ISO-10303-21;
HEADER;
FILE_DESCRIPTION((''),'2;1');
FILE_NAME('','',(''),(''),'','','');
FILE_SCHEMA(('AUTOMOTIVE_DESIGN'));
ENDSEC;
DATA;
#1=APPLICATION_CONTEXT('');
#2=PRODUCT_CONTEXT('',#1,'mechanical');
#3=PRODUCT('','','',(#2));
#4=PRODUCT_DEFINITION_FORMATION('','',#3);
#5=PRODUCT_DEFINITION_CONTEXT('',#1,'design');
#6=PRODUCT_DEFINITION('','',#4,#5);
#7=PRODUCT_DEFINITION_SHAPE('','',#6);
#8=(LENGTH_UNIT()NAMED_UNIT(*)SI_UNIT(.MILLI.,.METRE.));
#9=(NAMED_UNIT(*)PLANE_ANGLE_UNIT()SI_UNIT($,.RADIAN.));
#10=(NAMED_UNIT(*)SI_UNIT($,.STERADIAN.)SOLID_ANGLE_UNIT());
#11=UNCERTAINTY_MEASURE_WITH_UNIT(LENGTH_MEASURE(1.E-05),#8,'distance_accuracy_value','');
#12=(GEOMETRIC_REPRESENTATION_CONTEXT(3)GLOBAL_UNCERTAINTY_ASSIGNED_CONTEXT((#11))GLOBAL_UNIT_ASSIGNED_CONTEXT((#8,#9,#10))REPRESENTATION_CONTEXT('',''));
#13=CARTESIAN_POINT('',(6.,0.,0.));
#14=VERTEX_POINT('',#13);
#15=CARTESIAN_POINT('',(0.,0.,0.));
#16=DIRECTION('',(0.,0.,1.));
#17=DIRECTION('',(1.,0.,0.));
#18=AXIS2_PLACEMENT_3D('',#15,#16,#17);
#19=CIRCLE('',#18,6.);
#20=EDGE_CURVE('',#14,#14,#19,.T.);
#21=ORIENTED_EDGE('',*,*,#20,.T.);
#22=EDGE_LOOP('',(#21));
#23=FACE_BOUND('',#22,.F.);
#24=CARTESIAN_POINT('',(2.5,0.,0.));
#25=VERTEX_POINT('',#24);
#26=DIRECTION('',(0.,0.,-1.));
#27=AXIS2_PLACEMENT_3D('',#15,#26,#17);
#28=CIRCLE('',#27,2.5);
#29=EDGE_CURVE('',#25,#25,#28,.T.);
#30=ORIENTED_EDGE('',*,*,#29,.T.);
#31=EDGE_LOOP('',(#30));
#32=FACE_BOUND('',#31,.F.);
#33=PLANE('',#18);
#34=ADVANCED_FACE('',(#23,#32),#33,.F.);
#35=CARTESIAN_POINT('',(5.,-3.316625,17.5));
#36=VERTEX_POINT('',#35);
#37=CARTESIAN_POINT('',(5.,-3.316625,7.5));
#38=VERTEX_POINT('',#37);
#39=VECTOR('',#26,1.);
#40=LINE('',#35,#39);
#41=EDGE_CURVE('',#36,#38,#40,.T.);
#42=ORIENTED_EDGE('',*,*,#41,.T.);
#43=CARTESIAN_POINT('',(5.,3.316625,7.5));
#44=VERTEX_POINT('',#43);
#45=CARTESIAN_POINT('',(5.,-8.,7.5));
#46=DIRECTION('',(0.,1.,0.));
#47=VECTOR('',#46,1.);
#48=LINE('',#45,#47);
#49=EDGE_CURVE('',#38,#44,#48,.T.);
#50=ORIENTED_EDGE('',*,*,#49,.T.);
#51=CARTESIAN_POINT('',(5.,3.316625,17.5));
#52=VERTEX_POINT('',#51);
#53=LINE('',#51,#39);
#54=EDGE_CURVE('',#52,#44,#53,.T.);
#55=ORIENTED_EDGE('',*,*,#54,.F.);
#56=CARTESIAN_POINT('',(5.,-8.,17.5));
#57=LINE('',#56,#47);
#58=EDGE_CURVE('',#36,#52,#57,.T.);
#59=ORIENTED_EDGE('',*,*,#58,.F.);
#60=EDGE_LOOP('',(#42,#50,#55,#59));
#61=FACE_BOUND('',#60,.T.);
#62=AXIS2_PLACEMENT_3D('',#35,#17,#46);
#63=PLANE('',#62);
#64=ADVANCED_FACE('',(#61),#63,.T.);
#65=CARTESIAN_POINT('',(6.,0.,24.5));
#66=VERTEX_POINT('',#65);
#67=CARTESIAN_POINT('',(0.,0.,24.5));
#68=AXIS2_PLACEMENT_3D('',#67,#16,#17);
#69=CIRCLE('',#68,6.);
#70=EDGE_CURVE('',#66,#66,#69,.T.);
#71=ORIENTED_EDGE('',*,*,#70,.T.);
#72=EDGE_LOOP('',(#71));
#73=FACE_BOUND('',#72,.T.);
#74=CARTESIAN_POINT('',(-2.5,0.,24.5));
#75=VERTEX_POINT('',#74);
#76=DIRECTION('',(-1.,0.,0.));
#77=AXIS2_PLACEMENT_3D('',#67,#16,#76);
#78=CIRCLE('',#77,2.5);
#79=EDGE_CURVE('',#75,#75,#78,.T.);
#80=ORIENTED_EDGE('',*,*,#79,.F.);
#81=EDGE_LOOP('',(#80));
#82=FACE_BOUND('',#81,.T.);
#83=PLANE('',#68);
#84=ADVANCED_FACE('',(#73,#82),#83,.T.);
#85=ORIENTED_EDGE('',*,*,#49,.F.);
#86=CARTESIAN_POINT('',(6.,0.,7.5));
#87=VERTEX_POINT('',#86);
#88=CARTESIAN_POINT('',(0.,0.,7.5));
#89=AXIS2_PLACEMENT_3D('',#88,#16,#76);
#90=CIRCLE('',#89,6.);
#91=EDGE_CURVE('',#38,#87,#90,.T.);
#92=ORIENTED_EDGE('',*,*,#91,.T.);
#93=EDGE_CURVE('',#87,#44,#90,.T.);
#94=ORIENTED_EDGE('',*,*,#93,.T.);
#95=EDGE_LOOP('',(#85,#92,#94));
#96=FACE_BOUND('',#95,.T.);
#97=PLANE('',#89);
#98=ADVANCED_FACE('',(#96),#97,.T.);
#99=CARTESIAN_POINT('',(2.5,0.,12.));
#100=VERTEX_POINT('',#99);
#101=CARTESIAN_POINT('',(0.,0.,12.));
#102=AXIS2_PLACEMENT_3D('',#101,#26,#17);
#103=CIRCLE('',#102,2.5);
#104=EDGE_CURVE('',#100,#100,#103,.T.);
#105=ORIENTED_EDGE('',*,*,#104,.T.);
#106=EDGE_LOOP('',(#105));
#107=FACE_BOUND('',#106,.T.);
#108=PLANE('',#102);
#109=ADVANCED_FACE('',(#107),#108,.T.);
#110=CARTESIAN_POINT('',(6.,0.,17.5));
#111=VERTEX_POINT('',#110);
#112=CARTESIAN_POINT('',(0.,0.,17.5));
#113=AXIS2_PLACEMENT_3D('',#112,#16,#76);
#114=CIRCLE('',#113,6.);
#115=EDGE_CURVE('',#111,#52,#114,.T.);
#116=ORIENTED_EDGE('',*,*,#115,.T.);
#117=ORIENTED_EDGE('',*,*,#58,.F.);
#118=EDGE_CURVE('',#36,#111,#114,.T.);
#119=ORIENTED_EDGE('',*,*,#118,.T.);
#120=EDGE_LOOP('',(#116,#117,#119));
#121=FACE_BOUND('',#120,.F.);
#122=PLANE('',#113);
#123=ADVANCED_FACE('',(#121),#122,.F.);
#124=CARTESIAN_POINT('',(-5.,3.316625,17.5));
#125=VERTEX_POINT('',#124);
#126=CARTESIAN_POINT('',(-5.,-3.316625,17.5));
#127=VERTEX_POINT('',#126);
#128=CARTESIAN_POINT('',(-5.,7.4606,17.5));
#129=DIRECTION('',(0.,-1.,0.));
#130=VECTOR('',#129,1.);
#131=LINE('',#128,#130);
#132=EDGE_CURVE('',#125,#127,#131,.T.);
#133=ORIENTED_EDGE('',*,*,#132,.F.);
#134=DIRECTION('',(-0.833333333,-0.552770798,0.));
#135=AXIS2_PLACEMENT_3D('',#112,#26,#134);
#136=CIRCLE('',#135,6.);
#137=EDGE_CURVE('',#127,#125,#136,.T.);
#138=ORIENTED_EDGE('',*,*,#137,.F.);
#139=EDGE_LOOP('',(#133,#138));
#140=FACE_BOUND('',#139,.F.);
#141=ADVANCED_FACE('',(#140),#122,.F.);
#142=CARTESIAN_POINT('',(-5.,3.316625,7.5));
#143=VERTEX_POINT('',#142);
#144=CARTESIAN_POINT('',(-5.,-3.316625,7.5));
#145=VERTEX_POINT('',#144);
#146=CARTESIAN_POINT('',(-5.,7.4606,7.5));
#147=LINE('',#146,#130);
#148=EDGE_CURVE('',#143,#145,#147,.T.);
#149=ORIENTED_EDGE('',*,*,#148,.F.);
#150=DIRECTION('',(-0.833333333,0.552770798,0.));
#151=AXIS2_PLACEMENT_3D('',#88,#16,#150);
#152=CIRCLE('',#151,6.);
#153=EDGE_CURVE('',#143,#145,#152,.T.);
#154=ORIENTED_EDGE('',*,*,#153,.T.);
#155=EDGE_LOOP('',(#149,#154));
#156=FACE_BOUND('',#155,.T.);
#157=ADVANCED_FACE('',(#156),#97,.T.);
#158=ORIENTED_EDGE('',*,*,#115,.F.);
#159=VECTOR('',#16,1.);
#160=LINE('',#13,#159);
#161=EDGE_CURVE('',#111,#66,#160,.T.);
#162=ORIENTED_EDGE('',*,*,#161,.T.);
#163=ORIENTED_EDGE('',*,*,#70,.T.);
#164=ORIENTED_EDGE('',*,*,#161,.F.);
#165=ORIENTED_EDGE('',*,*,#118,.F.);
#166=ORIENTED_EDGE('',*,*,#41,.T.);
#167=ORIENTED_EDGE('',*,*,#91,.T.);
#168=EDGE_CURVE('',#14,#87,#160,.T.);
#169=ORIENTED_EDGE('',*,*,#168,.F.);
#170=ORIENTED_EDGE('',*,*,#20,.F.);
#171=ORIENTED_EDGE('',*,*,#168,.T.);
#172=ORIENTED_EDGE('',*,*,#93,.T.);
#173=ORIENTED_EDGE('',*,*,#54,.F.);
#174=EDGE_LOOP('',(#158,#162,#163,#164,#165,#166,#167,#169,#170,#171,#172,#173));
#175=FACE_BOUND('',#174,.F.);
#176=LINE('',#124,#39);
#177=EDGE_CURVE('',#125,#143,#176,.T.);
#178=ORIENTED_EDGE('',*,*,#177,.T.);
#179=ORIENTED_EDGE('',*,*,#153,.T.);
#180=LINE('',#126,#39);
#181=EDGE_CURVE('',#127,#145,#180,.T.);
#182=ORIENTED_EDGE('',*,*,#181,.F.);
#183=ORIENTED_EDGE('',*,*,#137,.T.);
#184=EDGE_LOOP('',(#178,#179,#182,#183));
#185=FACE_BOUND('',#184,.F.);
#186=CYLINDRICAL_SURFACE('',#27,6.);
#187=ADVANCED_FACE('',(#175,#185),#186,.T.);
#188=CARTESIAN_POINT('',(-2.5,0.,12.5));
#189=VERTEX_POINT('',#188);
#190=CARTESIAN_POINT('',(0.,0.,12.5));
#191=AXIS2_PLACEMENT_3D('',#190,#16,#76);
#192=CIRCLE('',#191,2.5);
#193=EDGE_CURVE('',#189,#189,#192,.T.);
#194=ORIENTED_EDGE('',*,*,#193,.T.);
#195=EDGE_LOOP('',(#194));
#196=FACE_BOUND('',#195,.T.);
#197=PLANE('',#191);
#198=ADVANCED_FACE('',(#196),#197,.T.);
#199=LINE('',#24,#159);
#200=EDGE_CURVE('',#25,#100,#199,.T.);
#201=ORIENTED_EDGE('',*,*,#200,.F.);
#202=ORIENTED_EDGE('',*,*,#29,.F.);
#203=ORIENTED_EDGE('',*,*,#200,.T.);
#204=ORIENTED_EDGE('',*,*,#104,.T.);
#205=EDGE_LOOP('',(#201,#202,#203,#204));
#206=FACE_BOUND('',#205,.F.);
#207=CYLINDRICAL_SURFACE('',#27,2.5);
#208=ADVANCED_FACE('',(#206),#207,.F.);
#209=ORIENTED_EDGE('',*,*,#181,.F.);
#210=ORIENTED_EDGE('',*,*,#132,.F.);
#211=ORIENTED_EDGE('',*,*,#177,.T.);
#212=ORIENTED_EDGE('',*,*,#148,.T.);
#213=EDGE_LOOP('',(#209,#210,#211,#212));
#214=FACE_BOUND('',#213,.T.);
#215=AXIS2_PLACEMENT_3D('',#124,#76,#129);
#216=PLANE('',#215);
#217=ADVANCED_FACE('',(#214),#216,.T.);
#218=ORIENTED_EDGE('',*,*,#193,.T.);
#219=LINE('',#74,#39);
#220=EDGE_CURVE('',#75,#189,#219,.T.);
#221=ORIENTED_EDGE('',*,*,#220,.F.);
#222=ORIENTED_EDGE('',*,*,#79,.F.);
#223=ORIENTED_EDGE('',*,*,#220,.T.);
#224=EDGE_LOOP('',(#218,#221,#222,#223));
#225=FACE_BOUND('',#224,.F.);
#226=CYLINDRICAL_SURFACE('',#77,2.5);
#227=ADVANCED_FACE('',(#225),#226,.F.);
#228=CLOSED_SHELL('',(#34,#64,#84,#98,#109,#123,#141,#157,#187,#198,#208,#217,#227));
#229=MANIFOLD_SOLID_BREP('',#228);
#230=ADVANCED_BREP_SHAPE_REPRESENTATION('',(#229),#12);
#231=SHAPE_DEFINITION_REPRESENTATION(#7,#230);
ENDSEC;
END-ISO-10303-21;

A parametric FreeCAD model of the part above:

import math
import FreeCAD as App
import Part
import Sketcher

V = App.Vector
Q = App.Units.Quantity

doc = App.newDocument("Part")
params = doc.addObject("Spreadsheet::Sheet", "Params")
for row, (alias, value) in enumerate([
    ("sketch1_diameter", "12 mm"),
    ("pad1_length", "24.5 mm"),
    ("sketch2_diameter", "5 mm"),
    ("pocket1_length", "12 mm"),
    ("sketch3_diameter", "5 mm"),
    ("pocket2_length", "12 mm"),
    ("sketch4_radius", "6 mm"),
    ("pocket3_length", "10 mm"),
], start=1):
    params.set(f"A{row}", alias)
    params.set(f"B{row}", "=" + value)
    params.setAlias(f"B{row}", alias)

body = doc.addObject("PartDesign::Body", "Body")

sketch1 = body.newObject("Sketcher::SketchObject", "Sketch")
sketch1.AttachmentSupport = (doc.getObject("XY_Plane"), [""])
sketch1.MapMode = "FlatFace"
sketch1.addGeometry(Part.Circle(V(0, 0, 0), V(0, 0, 1), 6), False)
sketch1.addConstraint([
    Sketcher.Constraint("Coincident", 0, 3, -1, 1),
    Sketcher.Constraint("Diameter", 0, Q("12 mm")),
])
sketch1.setExpression("Constraints[1]", "Params.sketch1_diameter")
pad1 = body.newObject("PartDesign::Pad", "Pad")
pad1.Profile = sketch1
pad1.setExpression("Length", "Params.pad1_length")

sketch2 = body.newObject("Sketcher::SketchObject", "Sketch001")
sketch2.AttachmentSupport = (doc.getObject("XY_Plane"), [""])
sketch2.MapMode = "FlatFace"
sketch2.AttachmentOffset = App.Placement(V(0, 0, 24.5), App.Rotation())
sketch2.addGeometry(Part.Circle(V(0, 0, 0), V(0, 0, 1), 2.5), False)
sketch2.addConstraint([
    Sketcher.Constraint("Coincident", 0, 3, -1, 1),
    Sketcher.Constraint("Diameter", 0, Q("5 mm")),
])
sketch2.setExpression("Constraints[1]", "Params.sketch2_diameter")
pocket1 = body.newObject("PartDesign::Pocket", "Pocket")
pocket1.Profile = sketch2
pocket1.setExpression("Length", "Params.pocket1_length")

sketch3 = body.newObject("Sketcher::SketchObject", "Sketch002")
sketch3.AttachmentSupport = (doc.getObject("XY_Plane"), [""])
sketch3.MapMode = "FlatFace"
sketch3.addGeometry(Part.Circle(V(0, 0, 0), V(0, 0, 1), 2.5), False)
sketch3.addConstraint([
    Sketcher.Constraint("Coincident", 0, 3, -1, 1),
    Sketcher.Constraint("Diameter", 0, Q("5 mm")),
])
sketch3.setExpression("Constraints[1]", "Params.sketch3_diameter")
pocket2 = body.newObject("PartDesign::Pocket", "Pocket001")
pocket2.Profile = sketch3
pocket2.setExpression("Length", "Params.pocket2_length")
pocket2.Reversed = True

sketch4 = body.newObject("Sketcher::SketchObject", "Sketch003")
sketch4.AttachmentSupport = (doc.getObject("XY_Plane"), [""])
sketch4.MapMode = "FlatFace"
sketch4.AttachmentOffset = App.Placement(V(0, 0, 17.5), App.Rotation())
sketch4.addGeometry([
    Part.ArcOfCircle(Part.Circle(V(0, 0, 0), V(0, 0, 1), 6), math.radians(146), math.radians(214)),
    Part.LineSegment(V(-5, -3, 0), V(-5, 3, 0)),
    Part.LineSegment(V(5, 3, 0), V(5, -3, 0)),
    Part.ArcOfCircle(Part.Circle(V(0, 0, 0), V(0, 0, 1), 6), math.radians(-34), math.radians(34)),
], False)
sketch4.addConstraint([
    Sketcher.Constraint("Coincident", 0, 1, 1, 2),
    Sketcher.Constraint("Coincident", 1, 1, 0, 2),
    Sketcher.Constraint("Coincident", 2, 1, 3, 2),
    Sketcher.Constraint("Coincident", 3, 1, 2, 2),
    Sketcher.Constraint("Vertical", 1),
    Sketcher.Constraint("Vertical", 2),
    Sketcher.Constraint("Coincident", 0, 3, -1, 1),
    Sketcher.Constraint("Coincident", 3, 3, -1, 1),
    Sketcher.Constraint("Equal", 0, 3),
    Sketcher.Constraint("Horizontal", 0, 1, 2, 1),
    Sketcher.Constraint("DistanceX", 0, 1, -1, 1, Q("5 mm")),
    Sketcher.Constraint("Radius", 0, Q("6 mm")),
])
sketch4.setExpression("Constraints[11]", "Params.sketch4_radius")
pocket3 = body.newObject("PartDesign::Pocket", "Pocket002")
pocket3.Profile = sketch4
pocket3.setExpression("Length", "Params.pocket3_length")

doc.recompute()
